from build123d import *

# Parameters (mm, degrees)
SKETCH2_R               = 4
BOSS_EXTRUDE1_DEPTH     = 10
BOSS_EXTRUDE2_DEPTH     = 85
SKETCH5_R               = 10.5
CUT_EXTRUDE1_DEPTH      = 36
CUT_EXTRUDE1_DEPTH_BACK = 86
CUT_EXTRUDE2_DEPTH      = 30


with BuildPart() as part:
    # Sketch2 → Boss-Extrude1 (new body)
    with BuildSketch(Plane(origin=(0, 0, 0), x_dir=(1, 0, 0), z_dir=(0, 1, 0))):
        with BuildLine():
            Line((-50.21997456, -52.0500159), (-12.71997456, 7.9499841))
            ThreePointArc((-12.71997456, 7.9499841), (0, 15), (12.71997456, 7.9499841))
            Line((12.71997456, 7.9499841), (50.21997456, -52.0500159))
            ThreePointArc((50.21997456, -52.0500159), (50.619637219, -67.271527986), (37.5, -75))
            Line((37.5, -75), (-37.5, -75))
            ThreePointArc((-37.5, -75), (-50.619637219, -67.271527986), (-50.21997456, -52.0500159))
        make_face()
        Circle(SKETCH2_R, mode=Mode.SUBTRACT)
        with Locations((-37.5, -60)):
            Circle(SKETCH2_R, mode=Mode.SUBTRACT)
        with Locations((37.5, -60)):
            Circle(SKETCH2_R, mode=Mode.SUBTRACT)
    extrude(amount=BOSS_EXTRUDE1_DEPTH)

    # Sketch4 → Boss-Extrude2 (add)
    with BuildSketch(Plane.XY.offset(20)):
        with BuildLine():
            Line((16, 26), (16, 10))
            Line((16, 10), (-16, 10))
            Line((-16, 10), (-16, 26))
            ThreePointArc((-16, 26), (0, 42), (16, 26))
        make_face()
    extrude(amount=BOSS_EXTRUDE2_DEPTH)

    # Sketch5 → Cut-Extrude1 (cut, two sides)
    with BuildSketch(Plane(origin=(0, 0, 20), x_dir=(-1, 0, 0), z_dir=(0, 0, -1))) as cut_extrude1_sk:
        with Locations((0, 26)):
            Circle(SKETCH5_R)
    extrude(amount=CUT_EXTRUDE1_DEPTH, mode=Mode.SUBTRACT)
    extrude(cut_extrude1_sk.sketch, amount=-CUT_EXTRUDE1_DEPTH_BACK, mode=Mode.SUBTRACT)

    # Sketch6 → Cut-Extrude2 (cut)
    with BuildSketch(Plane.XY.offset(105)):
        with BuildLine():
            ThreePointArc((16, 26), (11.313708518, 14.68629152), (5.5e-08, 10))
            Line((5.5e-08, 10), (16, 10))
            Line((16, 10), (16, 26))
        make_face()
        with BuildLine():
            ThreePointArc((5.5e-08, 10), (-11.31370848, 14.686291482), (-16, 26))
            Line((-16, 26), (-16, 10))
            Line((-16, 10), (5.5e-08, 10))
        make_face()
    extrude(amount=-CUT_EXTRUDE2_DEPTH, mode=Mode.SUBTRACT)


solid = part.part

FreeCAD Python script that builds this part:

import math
import FreeCAD as App
import Part
import Sketcher
Q = App.Units.Quantity

doc = App.newDocument("Part")
params = doc.addObject("Spreadsheet::Sheet", "Params")
for row, (alias, value) in enumerate([
    ("sketch1_diameter", "8 mm"),
    ("sketch1_radius", "15 mm"),
    ("sketch1_width", "75 mm"),
    ("pad1_length", "10 mm"),
    ("sketch2_radius", "16 mm"),
    ("sketch2_height", "16 mm"),
    ("pad2_length", "85 mm"),
    ("sketch3_diameter", "21 mm"),
    ("sketch4_radius", "16 mm"),
    ("pocket2_length", "30 mm"),
], start=1):
    params.set(f"A{row}", alias)
    params.set(f"B{row}", "=" + value)
    params.setAlias(f"B{row}", alias)

body = doc.addObject("PartDesign::Body", "Body")

# Sketch on XZ plane
sketch1 = doc.addObject("Sketcher::SketchObject", "Sketch")
body.addObject(sketch1)
sketch1.AttachmentSupport = (doc.XZ_Plane, [""])
sketch1.MapMode = "FlatFace"
sketch1.addGeometry([
    Part.LineSegment(App.Vector(-12.7, -7.9, 0), App.Vector(-50.2, 52.1, 0)),  # 0
    Part.ArcOfCircle(Part.Circle(App.Vector(-37.5, 60, 0), App.Vector(0, 0, 1), 15), math.radians(90), math.radians(212)),  # 1
    Part.LineSegment(App.Vector(-37.5, 75, 0), App.Vector(37.5, 75, 0)),  # 2
    Part.ArcOfCircle(Part.Circle(App.Vector(37.5, 60, 0), App.Vector(0, 0, 1), 15), math.radians(-32), math.radians(90)),  # 3
    Part.LineSegment(App.Vector(50.2, 52.1, 0), App.Vector(12.7, -7.9, 0)),  # 4
    Part.ArcOfCircle(Part.Circle(App.Vector(0, 0, 0), App.Vector(0, 0, 1), 15), math.radians(-148), math.radians(-32)),  # 5
    Part.Circle(App.Vector(37.5, 60, 0), App.Vector(0, 0, 1), 4),  # 6
    Part.Circle(App.Vector(-37.5, 60, 0), App.Vector(0, 0, 1), 4),  # 7
    Part.Circle(App.Vector(0, 0, 0), App.Vector(0, 0, 1), 4),  # 8
], False)
sketch1.addConstraint([
    Sketcher.Constraint("Tangent", 0, 2, 1, 2),
    Sketcher.Constraint("Tangent", 1, 1, 2, 1),
    Sketcher.Constraint("Tangent", 2, 2, 3, 2),
    Sketcher.Constraint("Tangent", 3, 1, 4, 1),
    Sketcher.Constraint("Tangent", 4, 2, 5, 2),
    Sketcher.Constraint("Tangent", 5, 1, 0, 1),
    Sketcher.Constraint("Horizontal", 2),
    Sketcher.Constraint("Coincident", 5, 3, -1, 1),
    Sketcher.Constraint("Coincident", 8, 3, -1, 1),
    Sketcher.Constraint("Coincident", 6, 3, 3, 3),
    Sketcher.Constraint("Coincident", 7, 3, 1, 3),
    Sketcher.Constraint("Equal", 1, 3),
    Sketcher.Constraint("Equal", 3, 5),
    Sketcher.Constraint("Equal", 6, 7),
    Sketcher.Constraint("Equal", 7, 8),
    Sketcher.Constraint("Horizontal", 0, 2, 3, 1),
    Sketcher.Constraint("Diameter", 6, Q("8 mm")),
    Sketcher.Constraint("Radius", 1, Q("15 mm")),
    Sketcher.Constraint("DistanceX", 2, 1, 2, 2, Q("75 mm")),
    Sketcher.Constraint("DistanceY", -1, 1, 1, 3, Q("60 mm")),
])
sketch1.setExpression("Constraints[16]", "Params.sketch1_diameter")
sketch1.setExpression("Constraints[17]", "Params.sketch1_radius")
sketch1.setExpression("Constraints[18]", "Params.sketch1_width")
pad1 = doc.addObject("PartDesign::Pad", "Pad")
body.addObject(pad1)
pad1.Profile = sketch1
pad1.setExpression("Length", "Params.pad1_length")
pad1.Reversed = True

# Sketch on XY plane
sketch2 = doc.addObject("Sketcher::SketchObject", "Sketch001")
body.addObject(sketch2)
sketch2.AttachmentSupport = (doc.XY_Plane, [""])
sketch2.MapMode = "FlatFace"
sketch2.AttachmentOffset = App.Placement(App.Vector(0, 0, 20), App.Rotation())
sketch2.addGeometry([
    Part.LineSegment(App.Vector(16, 10, 0), App.Vector(16, 26, 0)),
    Part.ArcOfCircle(Part.Circle(App.Vector(0, 26, 0), App.Vector(0, 0, 1), 16), math.radians(0), math.radians(180)),
    Part.LineSegment(App.Vector(-16, 26, 0), App.Vector(-16, 10, 0)),
    Part.LineSegment(App.Vector(-16, 10, 0), App.Vector(16, 10, 0)),
], False)
sketch2.addConstraint([
    Sketcher.Constraint("Tangent", 0, 2, 1, 1),
    Sketcher.Constraint("Tangent", 1, 2, 2, 1),
    Sketcher.Constraint("Coincident", 2, 2, 3, 1),
    Sketcher.Constraint("Coincident", 3, 2, 0, 1),
    Sketcher.Constraint("Vertical", 0),
    Sketcher.Constraint("Vertical", 2),
    Sketcher.Constraint("Horizontal", 3),
    Sketcher.Constraint("PointOnObject", 1, 3, -2),
    Sketcher.Constraint("Radius", 1, Q("16 mm")),
    Sketcher.Constraint("DistanceY", 0, 1, 0, 2, Q("16 mm")),
    Sketcher.Constraint("DistanceY", -1, 1, 1, 3, Q("26 mm")),
])
sketch2.setExpression("Constraints[8]", "Params.sketch2_radius")
sketch2.setExpression("Constraints[9]", "Params.sketch2_height")
pad2 = doc.addObject("PartDesign::Pad", "Pad001")
body.addObject(pad2)
pad2.Profile = sketch2
pad2.setExpression("Length", "Params.pad2_length")

# Sketch on XY plane
sketch3 = doc.addObject("Sketcher::SketchObject", "Sketch002")
body.addObject(sketch3)
sketch3.AttachmentSupport = (doc.XY_Plane, [""])
sketch3.MapMode = "FlatFace"
sketch3.AttachmentOffset = App.Placement(App.Vector(0, 0, 20), App.Rotation())
sketch3.addGeometry(Part.Circle(App.Vector(0, 26, 0), App.Vector(0, 0, 1), 10), False)
sketch3.addConstraint([
    Sketcher.Constraint("PointOnObject", 0, 3, -2),
    Sketcher.Constraint("Diameter", 0, Q("21 mm")),
    Sketcher.Constraint("DistanceY", -1, 1, 0, 3, Q("26 mm")),
])
sketch3.setExpression("Constraints[1]", "Params.sketch3_diameter")
pocket1 = doc.addObject("PartDesign::Pocket", "Pocket")
body.addObject(pocket1)
pocket1.Profile = sketch3
pocket1.Type = "ThroughAll"
pocket1.Midplane = True

# Sketch on XY plane
sketch4 = doc.addObject("Sketcher::SketchObject", "Sketch003")
body.addObject(sketch4)
sketch4.AttachmentSupport = (doc.XY_Plane, [""])
sketch4.MapMode = "FlatFace"
sketch4.AttachmentOffset = App.Placement(App.Vector(0, 0, 105), App.Rotation())
sketch4.addGeometry([
    Part.ArcOfCircle(Part.Circle(App.Vector(0, 26, 0), App.Vector(0, 0, 1), 16), math.radians(-90), math.radians(0)),  # 0
    Part.LineSegment(App.Vector(0, 10, 0), App.Vector(16, 10, 0)),  # 1
    Part.LineSegment(App.Vector(16, 10, 0), App.Vector(16, 26, 0)),  # 2
    Part.ArcOfCircle(Part.Circle(App.Vector(0, 26, 0), App.Vector(0, 0, 1), 16), math.radians(180), math.radians(270)),  # 3
    Part.LineSegment(App.Vector(-16, 26, 0), App.Vector(-16, 10, 0)),  # 4
    Part.LineSegment(App.Vector(-16, 10, 0), App.Vector(0, 10, 0)),  # 5
], False)
sketch4.addConstraint([
    Sketcher.Constraint("Tangent", 0, 1, 1, 1),
    Sketcher.Constraint("Coincident", 1, 2, 2, 1),
    Sketcher.Constraint("Tangent", 2, 2, 0, 2),
    Sketcher.Constraint("Tangent", 3, 1, 4, 1),
    Sketcher.Constraint("Coincident", 4, 2, 5, 1),
    Sketcher.Constraint("Tangent", 5, 2, 3, 2),
    Sketcher.Constraint("Horizontal", 1),
    Sketcher.Constraint("Vertical", 2),
    Sketcher.Constraint("Vertical", 4),
    Sketcher.Constraint("Horizontal", 5),
    Sketcher.Constraint("Coincident", 3, 3, 0, 3),
    Sketcher.Constraint("Equal", 0, 3),
    Sketcher.Constraint("PointOnObject", 0, 3, -2),
    Sketcher.Constraint("Radius", 0, Q("16 mm")),
    Sketcher.Constraint("DistanceY", -1, 1, 0, 3, Q("26 mm")),
])
sketch4.setExpression("Constraints[13]", "Params.sketch4_radius")
pocket2 = doc.addObject("PartDesign::Pocket", "Pocket001")
body.addObject(pocket2)
pocket2.Profile = sketch4
pocket2.setExpression("Length", "Params.pocket2_length")

doc.recompute()
